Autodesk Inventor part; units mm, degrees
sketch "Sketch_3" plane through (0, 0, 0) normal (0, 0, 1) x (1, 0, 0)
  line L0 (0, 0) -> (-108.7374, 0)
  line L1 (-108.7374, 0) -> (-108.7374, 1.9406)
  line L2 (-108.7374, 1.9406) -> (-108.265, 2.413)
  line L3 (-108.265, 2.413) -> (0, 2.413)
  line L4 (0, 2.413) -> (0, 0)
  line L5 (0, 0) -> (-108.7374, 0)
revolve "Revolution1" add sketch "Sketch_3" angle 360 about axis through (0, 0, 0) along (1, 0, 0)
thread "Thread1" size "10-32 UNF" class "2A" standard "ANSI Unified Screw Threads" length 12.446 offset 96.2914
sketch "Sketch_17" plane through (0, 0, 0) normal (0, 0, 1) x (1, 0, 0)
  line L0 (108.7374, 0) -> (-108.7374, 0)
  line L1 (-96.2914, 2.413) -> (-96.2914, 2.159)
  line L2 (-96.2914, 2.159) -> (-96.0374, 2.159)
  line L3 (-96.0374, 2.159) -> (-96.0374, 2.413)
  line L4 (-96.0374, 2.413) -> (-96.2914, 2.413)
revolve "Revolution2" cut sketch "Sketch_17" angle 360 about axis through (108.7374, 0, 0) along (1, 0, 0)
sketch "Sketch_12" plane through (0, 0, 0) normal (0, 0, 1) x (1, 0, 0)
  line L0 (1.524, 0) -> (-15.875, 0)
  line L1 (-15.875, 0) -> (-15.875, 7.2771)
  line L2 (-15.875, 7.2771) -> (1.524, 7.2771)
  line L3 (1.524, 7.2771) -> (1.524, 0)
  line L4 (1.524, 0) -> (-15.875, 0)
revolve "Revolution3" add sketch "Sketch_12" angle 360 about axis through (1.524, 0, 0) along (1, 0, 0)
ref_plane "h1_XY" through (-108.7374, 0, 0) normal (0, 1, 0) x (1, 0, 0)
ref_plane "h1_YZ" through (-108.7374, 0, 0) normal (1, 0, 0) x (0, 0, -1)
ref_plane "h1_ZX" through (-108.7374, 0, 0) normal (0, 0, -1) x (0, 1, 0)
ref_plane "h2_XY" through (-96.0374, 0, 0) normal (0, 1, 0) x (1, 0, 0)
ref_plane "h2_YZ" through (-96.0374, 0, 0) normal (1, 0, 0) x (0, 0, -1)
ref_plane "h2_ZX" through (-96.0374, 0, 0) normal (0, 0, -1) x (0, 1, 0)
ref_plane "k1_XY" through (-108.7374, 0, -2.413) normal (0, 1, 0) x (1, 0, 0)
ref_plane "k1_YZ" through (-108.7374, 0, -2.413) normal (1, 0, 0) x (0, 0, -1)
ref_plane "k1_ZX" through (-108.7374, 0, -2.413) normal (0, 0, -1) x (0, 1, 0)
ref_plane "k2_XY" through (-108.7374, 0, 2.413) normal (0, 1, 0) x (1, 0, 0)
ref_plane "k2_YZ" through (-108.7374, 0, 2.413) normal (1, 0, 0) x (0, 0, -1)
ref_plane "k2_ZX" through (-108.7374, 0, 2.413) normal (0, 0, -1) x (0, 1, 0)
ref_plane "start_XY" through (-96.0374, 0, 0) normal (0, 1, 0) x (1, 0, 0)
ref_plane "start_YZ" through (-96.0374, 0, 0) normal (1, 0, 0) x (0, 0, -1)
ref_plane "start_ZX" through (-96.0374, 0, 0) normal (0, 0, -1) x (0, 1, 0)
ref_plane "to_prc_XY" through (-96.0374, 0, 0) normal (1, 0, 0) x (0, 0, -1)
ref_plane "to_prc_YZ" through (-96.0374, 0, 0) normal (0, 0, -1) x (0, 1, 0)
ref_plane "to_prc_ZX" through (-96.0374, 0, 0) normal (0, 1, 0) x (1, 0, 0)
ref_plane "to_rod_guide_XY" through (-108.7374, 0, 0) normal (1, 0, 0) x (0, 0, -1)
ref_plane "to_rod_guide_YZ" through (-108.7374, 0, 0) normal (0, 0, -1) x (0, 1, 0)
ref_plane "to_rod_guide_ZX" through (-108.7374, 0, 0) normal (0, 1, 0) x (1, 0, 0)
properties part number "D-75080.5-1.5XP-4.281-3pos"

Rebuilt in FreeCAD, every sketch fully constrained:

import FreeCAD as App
import Part
import Sketcher

V = App.Vector
Q = App.Units.Quantity


def add_polygon(sketch, points):
    """Adds a closed chain of lines whose ends are joined by coincident constraints."""
    first, n = sketch.GeometryCount, len(points)
    for a, b in zip(points, points[1:] + points[:1]):
        sketch.addGeometry(Part.LineSegment(App.Vector(*a, 0), App.Vector(*b, 0)), False)
    for i in range(n):
        sketch.addConstraint(Sketcher.Constraint("Coincident", first + i, 2, first + (i + 1) % n, 1))

doc = App.newDocument("Part")
body = doc.addObject("PartDesign::Body", "Body")

# Sketch on XY plane
sketch1 = body.newObject("Sketcher::SketchObject", "Sketch")
sketch1.AttachmentSupport = (doc.getObject("XY_Plane"), [""])
sketch1.MapMode = "FlatFace"
add_polygon(sketch1, [(-108.7, 0), (0, 0), (0, 2.4), (-108.3, 2.4), (-108.7, 1.9)])  # lines 0-4
sketch1.addConstraint(Sketcher.Constraint("Horizontal", 0))
sketch1.addConstraint(Sketcher.Constraint("Vertical", 1))
sketch1.addConstraint(Sketcher.Constraint("Horizontal", 2))
sketch1.addConstraint(Sketcher.Constraint("Vertical", 4))
sketch1.addConstraint(Sketcher.Constraint("Coincident", 0, 2, -1, 1))
sketch1.addConstraint(Sketcher.Constraint("Angle", 3, Q("-135 deg")))
sketch1.addConstraint(Sketcher.Constraint("DistanceX", 0, 1, 0, 2, Q("4.281 in")))
sketch1.addConstraint(Sketcher.Constraint("DistanceY", 1, 1, 1, 2, Q("0.095 in")))
sketch1.addConstraint(Sketcher.Constraint("DistanceX", 2, 2, 2, 1, Q("4.2624 in")))
revolution = body.newObject("PartDesign::Revolution", "Revolution")
revolution.Profile = sketch1
revolution.ReferenceAxis = (sketch1, ["H_Axis"])
revolution.Angle = 360

# Sketch on XY plane
sketch2 = body.newObject("Sketcher::SketchObject", "Sketch001")
sketch2.AttachmentSupport = (doc.getObject("XY_Plane"), [""])
sketch2.MapMode = "FlatFace"
add_polygon(sketch2, [(-96.04, 2.41), (-96.29, 2.41), (-96.29, 2.16), (-96.04, 2.16)])  # lines 0-3
sketch2.addConstraint(Sketcher.Constraint("Horizontal", 0))
sketch2.addConstraint(Sketcher.Constraint("Vertical", 1))
sketch2.addConstraint(Sketcher.Constraint("Horizontal", 2))
sketch2.addConstraint(Sketcher.Constraint("Vertical", 3))
sketch2.addConstraint(Sketcher.Constraint("Equal", 2, 1))
sketch2.addConstraint(Sketcher.Constraint("DistanceX", 0, 2, 0, 1, Q("0.01 in")))
sketch2.addConstraint(Sketcher.Constraint("DistanceX", 0, 2, -1, 1, Q("3.791 in")))
sketch2.addConstraint(Sketcher.Constraint("DistanceY", -1, 1, 0, 2, Q("0.095 in")))
groove = body.newObject("PartDesign::Groove", "Groove")
groove.Profile = sketch2
groove.ReferenceAxis = (sketch2, ["H_Axis"])
groove.Angle = 360

# Sketch on XY plane
sketch3 = body.newObject("Sketcher::SketchObject", "Sketch002")
sketch3.AttachmentSupport = (doc.getObject("XY_Plane"), [""])
sketch3.MapMode = "FlatFace"
add_polygon(sketch3, [(-16, 0), (2, 0), (2, 7), (-16, 7)])  # lines 0-3
sketch3.addConstraint(Sketcher.Constraint("Horizontal", 0))
sketch3.addConstraint(Sketcher.Constraint("Vertical", 1))
sketch3.addConstraint(Sketcher.Constraint("Horizontal", 2))
sketch3.addConstraint(Sketcher.Constraint("Vertical", 3))
sketch3.addConstraint(Sketcher.Constraint("PointOnObject", 0, 2, -1))
sketch3.addConstraint(Sketcher.Constraint("DistanceX", 0, 1, 0, 2, Q("0.685 in")))
sketch3.addConstraint(Sketcher.Constraint("DistanceX", -1, 1, 0, 2, Q("0.06 in")))
sketch3.addConstraint(Sketcher.Constraint("DistanceY", 1, 1, 1, 2, Q("0.2865 in")))
revolution2 = body.newObject("PartDesign::Revolution", "Revolution001")
revolution2.Profile = sketch3
revolution2.ReferenceAxis = (sketch3, ["H_Axis"])
revolution2.Angle = 360

doc.recompute()
